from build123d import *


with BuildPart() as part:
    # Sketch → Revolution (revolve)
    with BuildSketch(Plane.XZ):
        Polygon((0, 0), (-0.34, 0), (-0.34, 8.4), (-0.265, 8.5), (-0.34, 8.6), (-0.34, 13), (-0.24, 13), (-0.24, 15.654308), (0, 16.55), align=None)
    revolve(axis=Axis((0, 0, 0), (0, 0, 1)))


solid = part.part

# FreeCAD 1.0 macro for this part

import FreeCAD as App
import Part
import Sketcher
from FreeCAD import Vector
Q = App.Units.Quantity


def add_polygon(sketch, points):
    """Adds a closed chain of lines whose ends are joined by coincident constraints."""
    first, n = sketch.GeometryCount, len(points)
    for a, b in zip(points, points[1:] + points[:1]):
        sketch.addGeometry(Part.LineSegment(App.Vector(*a, 0), App.Vector(*b, 0)), False)
    for i in range(n):
        sketch.addConstraint(Sketcher.Constraint("Coincident", first + i, 2, first + (i + 1) % n, 1))

doc = App.newDocument("Part")
body = doc.addObject("PartDesign::Body", "Body")

# Sketch on XZ plane
sketch1 = doc.addObject("Sketcher::SketchObject", "Sketch")
body.addObject(sketch1)
sketch1.AttachmentSupport = (doc.XZ_Plane, [""])
sketch1.MapMode = "FlatFace"
add_polygon(sketch1, [(-0.34, 0), (0, 0), (0, 16.55), (-0.24, 15.65), (-0.24, 13), (-0.34, 13), (-0.34, 8.6), (-0.27, 8.5), (-0.34, 8.4)])  # lines 0-8
sketch1.addConstraint(Sketcher.Constraint("Horizontal", 0))
sketch1.addConstraint(Sketcher.Constraint("Vertical", 1))
sketch1.addConstraint(Sketcher.Constraint("Vertical", 3))
sketch1.addConstraint(Sketcher.Constraint("Horizontal", 4))
sketch1.addConstraint(Sketcher.Constraint("Vertical", 5))
sketch1.addConstraint(Sketcher.Constraint("Vertical", 8))
sketch1.addConstraint(Sketcher.Constraint("Coincident", 0, 2, -1, 1))
sketch1.addConstraint(Sketcher.Constraint("Vertical", 5, 2, 7, 2))
sketch1.addConstraint(Sketcher.Constraint("Equal", 6, 7))
sketch1.addConstraint(Sketcher.Constraint("Angle", 2, Q("-105.000003 deg")))
sketch1.addConstraint(Sketcher.Constraint("DistanceX", 4, 2, 4, 1, 0.1))
sketch1.addConstraint(Sketcher.Constraint("DistanceY", 5, 2, 5, 1, 4.4))
sketch1.addConstraint(Sketcher.Constraint("DistanceY", 8, 2, 8, 1, 8.4))
sketch1.addConstraint(Sketcher.Constraint("DistanceY", -1, 1, 3, 2, 13.0))
sketch1.addConstraint(Sketcher.Constraint("DistanceX", 0, 1, 0, 2, 0.34))
sketch1.addConstraint(Sketcher.Constraint("DistanceY", 1, 1, 1, 2, 16.55))
sketch1.addConstraint(Sketcher.Constraint("Distance", 6, 0.125))
revolution = doc.addObject("PartDesign::Revolution", "Revolution")
body.addObject(revolution)
revolution.Profile = sketch1
revolution.ReferenceAxis = (sketch1, ["V_Axis"])
revolution.Angle = 360

doc.recompute()
